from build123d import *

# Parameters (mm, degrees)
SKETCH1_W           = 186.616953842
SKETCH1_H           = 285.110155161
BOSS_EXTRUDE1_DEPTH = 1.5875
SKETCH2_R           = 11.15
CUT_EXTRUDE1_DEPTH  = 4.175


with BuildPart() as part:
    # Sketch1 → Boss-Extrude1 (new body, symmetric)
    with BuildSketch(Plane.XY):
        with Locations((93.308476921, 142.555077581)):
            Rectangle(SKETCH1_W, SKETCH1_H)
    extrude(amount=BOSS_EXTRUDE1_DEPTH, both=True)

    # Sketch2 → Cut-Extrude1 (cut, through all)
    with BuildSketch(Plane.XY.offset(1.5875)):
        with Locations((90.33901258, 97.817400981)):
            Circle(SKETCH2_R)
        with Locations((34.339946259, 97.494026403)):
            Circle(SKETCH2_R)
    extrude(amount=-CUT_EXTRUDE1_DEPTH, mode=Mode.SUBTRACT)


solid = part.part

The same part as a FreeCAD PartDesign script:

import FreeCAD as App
import Part
import Sketcher
from FreeCAD import Vector

doc = App.newDocument("Part")
body = doc.addObject("PartDesign::Body", "Body")

sketch1 = doc.addObject("Sketcher::SketchObject", "Sketch")
body.addObject(sketch1)
sketch1.AttachmentSupport = (doc.XY_Plane, [""])
sketch1.MapMode = "FlatFace"
sketch1.addGeometry([
    Part.LineSegment(Vector(0, 285, 0), Vector(0, 0, 0)),
    Part.LineSegment(Vector(0, 0, 0), Vector(187, 0, 0)),
    Part.LineSegment(Vector(187, 0, 0), Vector(187, 285, 0)),
    Part.LineSegment(Vector(187, 285, 0), Vector(0, 285, 0)),
], False)
sketch1.addConstraint([
    Sketcher.Constraint("Coincident", 0, 2, 1, 1),
    Sketcher.Constraint("Coincident", 1, 2, 2, 1),
    Sketcher.Constraint("Coincident", 2, 2, 3, 1),
    Sketcher.Constraint("Coincident", 3, 2, 0, 1),
    Sketcher.Constraint("Vertical", 0),
    Sketcher.Constraint("Horizontal", 1),
    Sketcher.Constraint("Vertical", 2),
    Sketcher.Constraint("Horizontal", 3),
    Sketcher.Constraint("Coincident", 0, 2, -1, 1),
    Sketcher.Constraint("DistanceX", 1, 1, 1, 2, 186.616954),
    Sketcher.Constraint("DistanceY", 0, 2, 0, 1, 285.110155),
])
pad1 = doc.addObject("PartDesign::Pad", "Pad")
body.addObject(pad1)
pad1.Profile = sketch1
pad1.Length = 3.175
pad1.Midplane = True

sketch2 = doc.addObject("Sketcher::SketchObject", "Sketch001")
body.addObject(sketch2)
sketch2.AttachmentSupport = (doc.XY_Plane, [""])
sketch2.MapMode = "FlatFace"
sketch2.AttachmentOffset = App.Placement(Vector(0, 0, 1.5875), App.Rotation())
sketch2.addGeometry([
    Part.Circle(Vector(90, 98, 0), Vector(0, 0, 1), 11),
    Part.Circle(Vector(34, 97, 0), Vector(0, 0, 1), 11),
], False)
sketch2.addConstraint([
    Sketcher.Constraint("Equal", 0, 1),
    Sketcher.Constraint("Diameter", 0, 22.3),
    Sketcher.Constraint("DistanceY", -1, 1, 0, 3, 97.817401),
    Sketcher.Constraint("DistanceX", -1, 1, 0, 3, 90.339013),
    Sketcher.Constraint("DistanceX", -1, 1, 1, 3, 34.339946),
    Sketcher.Constraint("DistanceY", -1, 1, 1, 3, 97.494026),
])
pocket1 = doc.addObject("PartDesign::Pocket", "Pocket")
body.addObject(pocket1)
pocket1.Profile = sketch2
pocket1.Type = "ThroughAll"

doc.recompute()
